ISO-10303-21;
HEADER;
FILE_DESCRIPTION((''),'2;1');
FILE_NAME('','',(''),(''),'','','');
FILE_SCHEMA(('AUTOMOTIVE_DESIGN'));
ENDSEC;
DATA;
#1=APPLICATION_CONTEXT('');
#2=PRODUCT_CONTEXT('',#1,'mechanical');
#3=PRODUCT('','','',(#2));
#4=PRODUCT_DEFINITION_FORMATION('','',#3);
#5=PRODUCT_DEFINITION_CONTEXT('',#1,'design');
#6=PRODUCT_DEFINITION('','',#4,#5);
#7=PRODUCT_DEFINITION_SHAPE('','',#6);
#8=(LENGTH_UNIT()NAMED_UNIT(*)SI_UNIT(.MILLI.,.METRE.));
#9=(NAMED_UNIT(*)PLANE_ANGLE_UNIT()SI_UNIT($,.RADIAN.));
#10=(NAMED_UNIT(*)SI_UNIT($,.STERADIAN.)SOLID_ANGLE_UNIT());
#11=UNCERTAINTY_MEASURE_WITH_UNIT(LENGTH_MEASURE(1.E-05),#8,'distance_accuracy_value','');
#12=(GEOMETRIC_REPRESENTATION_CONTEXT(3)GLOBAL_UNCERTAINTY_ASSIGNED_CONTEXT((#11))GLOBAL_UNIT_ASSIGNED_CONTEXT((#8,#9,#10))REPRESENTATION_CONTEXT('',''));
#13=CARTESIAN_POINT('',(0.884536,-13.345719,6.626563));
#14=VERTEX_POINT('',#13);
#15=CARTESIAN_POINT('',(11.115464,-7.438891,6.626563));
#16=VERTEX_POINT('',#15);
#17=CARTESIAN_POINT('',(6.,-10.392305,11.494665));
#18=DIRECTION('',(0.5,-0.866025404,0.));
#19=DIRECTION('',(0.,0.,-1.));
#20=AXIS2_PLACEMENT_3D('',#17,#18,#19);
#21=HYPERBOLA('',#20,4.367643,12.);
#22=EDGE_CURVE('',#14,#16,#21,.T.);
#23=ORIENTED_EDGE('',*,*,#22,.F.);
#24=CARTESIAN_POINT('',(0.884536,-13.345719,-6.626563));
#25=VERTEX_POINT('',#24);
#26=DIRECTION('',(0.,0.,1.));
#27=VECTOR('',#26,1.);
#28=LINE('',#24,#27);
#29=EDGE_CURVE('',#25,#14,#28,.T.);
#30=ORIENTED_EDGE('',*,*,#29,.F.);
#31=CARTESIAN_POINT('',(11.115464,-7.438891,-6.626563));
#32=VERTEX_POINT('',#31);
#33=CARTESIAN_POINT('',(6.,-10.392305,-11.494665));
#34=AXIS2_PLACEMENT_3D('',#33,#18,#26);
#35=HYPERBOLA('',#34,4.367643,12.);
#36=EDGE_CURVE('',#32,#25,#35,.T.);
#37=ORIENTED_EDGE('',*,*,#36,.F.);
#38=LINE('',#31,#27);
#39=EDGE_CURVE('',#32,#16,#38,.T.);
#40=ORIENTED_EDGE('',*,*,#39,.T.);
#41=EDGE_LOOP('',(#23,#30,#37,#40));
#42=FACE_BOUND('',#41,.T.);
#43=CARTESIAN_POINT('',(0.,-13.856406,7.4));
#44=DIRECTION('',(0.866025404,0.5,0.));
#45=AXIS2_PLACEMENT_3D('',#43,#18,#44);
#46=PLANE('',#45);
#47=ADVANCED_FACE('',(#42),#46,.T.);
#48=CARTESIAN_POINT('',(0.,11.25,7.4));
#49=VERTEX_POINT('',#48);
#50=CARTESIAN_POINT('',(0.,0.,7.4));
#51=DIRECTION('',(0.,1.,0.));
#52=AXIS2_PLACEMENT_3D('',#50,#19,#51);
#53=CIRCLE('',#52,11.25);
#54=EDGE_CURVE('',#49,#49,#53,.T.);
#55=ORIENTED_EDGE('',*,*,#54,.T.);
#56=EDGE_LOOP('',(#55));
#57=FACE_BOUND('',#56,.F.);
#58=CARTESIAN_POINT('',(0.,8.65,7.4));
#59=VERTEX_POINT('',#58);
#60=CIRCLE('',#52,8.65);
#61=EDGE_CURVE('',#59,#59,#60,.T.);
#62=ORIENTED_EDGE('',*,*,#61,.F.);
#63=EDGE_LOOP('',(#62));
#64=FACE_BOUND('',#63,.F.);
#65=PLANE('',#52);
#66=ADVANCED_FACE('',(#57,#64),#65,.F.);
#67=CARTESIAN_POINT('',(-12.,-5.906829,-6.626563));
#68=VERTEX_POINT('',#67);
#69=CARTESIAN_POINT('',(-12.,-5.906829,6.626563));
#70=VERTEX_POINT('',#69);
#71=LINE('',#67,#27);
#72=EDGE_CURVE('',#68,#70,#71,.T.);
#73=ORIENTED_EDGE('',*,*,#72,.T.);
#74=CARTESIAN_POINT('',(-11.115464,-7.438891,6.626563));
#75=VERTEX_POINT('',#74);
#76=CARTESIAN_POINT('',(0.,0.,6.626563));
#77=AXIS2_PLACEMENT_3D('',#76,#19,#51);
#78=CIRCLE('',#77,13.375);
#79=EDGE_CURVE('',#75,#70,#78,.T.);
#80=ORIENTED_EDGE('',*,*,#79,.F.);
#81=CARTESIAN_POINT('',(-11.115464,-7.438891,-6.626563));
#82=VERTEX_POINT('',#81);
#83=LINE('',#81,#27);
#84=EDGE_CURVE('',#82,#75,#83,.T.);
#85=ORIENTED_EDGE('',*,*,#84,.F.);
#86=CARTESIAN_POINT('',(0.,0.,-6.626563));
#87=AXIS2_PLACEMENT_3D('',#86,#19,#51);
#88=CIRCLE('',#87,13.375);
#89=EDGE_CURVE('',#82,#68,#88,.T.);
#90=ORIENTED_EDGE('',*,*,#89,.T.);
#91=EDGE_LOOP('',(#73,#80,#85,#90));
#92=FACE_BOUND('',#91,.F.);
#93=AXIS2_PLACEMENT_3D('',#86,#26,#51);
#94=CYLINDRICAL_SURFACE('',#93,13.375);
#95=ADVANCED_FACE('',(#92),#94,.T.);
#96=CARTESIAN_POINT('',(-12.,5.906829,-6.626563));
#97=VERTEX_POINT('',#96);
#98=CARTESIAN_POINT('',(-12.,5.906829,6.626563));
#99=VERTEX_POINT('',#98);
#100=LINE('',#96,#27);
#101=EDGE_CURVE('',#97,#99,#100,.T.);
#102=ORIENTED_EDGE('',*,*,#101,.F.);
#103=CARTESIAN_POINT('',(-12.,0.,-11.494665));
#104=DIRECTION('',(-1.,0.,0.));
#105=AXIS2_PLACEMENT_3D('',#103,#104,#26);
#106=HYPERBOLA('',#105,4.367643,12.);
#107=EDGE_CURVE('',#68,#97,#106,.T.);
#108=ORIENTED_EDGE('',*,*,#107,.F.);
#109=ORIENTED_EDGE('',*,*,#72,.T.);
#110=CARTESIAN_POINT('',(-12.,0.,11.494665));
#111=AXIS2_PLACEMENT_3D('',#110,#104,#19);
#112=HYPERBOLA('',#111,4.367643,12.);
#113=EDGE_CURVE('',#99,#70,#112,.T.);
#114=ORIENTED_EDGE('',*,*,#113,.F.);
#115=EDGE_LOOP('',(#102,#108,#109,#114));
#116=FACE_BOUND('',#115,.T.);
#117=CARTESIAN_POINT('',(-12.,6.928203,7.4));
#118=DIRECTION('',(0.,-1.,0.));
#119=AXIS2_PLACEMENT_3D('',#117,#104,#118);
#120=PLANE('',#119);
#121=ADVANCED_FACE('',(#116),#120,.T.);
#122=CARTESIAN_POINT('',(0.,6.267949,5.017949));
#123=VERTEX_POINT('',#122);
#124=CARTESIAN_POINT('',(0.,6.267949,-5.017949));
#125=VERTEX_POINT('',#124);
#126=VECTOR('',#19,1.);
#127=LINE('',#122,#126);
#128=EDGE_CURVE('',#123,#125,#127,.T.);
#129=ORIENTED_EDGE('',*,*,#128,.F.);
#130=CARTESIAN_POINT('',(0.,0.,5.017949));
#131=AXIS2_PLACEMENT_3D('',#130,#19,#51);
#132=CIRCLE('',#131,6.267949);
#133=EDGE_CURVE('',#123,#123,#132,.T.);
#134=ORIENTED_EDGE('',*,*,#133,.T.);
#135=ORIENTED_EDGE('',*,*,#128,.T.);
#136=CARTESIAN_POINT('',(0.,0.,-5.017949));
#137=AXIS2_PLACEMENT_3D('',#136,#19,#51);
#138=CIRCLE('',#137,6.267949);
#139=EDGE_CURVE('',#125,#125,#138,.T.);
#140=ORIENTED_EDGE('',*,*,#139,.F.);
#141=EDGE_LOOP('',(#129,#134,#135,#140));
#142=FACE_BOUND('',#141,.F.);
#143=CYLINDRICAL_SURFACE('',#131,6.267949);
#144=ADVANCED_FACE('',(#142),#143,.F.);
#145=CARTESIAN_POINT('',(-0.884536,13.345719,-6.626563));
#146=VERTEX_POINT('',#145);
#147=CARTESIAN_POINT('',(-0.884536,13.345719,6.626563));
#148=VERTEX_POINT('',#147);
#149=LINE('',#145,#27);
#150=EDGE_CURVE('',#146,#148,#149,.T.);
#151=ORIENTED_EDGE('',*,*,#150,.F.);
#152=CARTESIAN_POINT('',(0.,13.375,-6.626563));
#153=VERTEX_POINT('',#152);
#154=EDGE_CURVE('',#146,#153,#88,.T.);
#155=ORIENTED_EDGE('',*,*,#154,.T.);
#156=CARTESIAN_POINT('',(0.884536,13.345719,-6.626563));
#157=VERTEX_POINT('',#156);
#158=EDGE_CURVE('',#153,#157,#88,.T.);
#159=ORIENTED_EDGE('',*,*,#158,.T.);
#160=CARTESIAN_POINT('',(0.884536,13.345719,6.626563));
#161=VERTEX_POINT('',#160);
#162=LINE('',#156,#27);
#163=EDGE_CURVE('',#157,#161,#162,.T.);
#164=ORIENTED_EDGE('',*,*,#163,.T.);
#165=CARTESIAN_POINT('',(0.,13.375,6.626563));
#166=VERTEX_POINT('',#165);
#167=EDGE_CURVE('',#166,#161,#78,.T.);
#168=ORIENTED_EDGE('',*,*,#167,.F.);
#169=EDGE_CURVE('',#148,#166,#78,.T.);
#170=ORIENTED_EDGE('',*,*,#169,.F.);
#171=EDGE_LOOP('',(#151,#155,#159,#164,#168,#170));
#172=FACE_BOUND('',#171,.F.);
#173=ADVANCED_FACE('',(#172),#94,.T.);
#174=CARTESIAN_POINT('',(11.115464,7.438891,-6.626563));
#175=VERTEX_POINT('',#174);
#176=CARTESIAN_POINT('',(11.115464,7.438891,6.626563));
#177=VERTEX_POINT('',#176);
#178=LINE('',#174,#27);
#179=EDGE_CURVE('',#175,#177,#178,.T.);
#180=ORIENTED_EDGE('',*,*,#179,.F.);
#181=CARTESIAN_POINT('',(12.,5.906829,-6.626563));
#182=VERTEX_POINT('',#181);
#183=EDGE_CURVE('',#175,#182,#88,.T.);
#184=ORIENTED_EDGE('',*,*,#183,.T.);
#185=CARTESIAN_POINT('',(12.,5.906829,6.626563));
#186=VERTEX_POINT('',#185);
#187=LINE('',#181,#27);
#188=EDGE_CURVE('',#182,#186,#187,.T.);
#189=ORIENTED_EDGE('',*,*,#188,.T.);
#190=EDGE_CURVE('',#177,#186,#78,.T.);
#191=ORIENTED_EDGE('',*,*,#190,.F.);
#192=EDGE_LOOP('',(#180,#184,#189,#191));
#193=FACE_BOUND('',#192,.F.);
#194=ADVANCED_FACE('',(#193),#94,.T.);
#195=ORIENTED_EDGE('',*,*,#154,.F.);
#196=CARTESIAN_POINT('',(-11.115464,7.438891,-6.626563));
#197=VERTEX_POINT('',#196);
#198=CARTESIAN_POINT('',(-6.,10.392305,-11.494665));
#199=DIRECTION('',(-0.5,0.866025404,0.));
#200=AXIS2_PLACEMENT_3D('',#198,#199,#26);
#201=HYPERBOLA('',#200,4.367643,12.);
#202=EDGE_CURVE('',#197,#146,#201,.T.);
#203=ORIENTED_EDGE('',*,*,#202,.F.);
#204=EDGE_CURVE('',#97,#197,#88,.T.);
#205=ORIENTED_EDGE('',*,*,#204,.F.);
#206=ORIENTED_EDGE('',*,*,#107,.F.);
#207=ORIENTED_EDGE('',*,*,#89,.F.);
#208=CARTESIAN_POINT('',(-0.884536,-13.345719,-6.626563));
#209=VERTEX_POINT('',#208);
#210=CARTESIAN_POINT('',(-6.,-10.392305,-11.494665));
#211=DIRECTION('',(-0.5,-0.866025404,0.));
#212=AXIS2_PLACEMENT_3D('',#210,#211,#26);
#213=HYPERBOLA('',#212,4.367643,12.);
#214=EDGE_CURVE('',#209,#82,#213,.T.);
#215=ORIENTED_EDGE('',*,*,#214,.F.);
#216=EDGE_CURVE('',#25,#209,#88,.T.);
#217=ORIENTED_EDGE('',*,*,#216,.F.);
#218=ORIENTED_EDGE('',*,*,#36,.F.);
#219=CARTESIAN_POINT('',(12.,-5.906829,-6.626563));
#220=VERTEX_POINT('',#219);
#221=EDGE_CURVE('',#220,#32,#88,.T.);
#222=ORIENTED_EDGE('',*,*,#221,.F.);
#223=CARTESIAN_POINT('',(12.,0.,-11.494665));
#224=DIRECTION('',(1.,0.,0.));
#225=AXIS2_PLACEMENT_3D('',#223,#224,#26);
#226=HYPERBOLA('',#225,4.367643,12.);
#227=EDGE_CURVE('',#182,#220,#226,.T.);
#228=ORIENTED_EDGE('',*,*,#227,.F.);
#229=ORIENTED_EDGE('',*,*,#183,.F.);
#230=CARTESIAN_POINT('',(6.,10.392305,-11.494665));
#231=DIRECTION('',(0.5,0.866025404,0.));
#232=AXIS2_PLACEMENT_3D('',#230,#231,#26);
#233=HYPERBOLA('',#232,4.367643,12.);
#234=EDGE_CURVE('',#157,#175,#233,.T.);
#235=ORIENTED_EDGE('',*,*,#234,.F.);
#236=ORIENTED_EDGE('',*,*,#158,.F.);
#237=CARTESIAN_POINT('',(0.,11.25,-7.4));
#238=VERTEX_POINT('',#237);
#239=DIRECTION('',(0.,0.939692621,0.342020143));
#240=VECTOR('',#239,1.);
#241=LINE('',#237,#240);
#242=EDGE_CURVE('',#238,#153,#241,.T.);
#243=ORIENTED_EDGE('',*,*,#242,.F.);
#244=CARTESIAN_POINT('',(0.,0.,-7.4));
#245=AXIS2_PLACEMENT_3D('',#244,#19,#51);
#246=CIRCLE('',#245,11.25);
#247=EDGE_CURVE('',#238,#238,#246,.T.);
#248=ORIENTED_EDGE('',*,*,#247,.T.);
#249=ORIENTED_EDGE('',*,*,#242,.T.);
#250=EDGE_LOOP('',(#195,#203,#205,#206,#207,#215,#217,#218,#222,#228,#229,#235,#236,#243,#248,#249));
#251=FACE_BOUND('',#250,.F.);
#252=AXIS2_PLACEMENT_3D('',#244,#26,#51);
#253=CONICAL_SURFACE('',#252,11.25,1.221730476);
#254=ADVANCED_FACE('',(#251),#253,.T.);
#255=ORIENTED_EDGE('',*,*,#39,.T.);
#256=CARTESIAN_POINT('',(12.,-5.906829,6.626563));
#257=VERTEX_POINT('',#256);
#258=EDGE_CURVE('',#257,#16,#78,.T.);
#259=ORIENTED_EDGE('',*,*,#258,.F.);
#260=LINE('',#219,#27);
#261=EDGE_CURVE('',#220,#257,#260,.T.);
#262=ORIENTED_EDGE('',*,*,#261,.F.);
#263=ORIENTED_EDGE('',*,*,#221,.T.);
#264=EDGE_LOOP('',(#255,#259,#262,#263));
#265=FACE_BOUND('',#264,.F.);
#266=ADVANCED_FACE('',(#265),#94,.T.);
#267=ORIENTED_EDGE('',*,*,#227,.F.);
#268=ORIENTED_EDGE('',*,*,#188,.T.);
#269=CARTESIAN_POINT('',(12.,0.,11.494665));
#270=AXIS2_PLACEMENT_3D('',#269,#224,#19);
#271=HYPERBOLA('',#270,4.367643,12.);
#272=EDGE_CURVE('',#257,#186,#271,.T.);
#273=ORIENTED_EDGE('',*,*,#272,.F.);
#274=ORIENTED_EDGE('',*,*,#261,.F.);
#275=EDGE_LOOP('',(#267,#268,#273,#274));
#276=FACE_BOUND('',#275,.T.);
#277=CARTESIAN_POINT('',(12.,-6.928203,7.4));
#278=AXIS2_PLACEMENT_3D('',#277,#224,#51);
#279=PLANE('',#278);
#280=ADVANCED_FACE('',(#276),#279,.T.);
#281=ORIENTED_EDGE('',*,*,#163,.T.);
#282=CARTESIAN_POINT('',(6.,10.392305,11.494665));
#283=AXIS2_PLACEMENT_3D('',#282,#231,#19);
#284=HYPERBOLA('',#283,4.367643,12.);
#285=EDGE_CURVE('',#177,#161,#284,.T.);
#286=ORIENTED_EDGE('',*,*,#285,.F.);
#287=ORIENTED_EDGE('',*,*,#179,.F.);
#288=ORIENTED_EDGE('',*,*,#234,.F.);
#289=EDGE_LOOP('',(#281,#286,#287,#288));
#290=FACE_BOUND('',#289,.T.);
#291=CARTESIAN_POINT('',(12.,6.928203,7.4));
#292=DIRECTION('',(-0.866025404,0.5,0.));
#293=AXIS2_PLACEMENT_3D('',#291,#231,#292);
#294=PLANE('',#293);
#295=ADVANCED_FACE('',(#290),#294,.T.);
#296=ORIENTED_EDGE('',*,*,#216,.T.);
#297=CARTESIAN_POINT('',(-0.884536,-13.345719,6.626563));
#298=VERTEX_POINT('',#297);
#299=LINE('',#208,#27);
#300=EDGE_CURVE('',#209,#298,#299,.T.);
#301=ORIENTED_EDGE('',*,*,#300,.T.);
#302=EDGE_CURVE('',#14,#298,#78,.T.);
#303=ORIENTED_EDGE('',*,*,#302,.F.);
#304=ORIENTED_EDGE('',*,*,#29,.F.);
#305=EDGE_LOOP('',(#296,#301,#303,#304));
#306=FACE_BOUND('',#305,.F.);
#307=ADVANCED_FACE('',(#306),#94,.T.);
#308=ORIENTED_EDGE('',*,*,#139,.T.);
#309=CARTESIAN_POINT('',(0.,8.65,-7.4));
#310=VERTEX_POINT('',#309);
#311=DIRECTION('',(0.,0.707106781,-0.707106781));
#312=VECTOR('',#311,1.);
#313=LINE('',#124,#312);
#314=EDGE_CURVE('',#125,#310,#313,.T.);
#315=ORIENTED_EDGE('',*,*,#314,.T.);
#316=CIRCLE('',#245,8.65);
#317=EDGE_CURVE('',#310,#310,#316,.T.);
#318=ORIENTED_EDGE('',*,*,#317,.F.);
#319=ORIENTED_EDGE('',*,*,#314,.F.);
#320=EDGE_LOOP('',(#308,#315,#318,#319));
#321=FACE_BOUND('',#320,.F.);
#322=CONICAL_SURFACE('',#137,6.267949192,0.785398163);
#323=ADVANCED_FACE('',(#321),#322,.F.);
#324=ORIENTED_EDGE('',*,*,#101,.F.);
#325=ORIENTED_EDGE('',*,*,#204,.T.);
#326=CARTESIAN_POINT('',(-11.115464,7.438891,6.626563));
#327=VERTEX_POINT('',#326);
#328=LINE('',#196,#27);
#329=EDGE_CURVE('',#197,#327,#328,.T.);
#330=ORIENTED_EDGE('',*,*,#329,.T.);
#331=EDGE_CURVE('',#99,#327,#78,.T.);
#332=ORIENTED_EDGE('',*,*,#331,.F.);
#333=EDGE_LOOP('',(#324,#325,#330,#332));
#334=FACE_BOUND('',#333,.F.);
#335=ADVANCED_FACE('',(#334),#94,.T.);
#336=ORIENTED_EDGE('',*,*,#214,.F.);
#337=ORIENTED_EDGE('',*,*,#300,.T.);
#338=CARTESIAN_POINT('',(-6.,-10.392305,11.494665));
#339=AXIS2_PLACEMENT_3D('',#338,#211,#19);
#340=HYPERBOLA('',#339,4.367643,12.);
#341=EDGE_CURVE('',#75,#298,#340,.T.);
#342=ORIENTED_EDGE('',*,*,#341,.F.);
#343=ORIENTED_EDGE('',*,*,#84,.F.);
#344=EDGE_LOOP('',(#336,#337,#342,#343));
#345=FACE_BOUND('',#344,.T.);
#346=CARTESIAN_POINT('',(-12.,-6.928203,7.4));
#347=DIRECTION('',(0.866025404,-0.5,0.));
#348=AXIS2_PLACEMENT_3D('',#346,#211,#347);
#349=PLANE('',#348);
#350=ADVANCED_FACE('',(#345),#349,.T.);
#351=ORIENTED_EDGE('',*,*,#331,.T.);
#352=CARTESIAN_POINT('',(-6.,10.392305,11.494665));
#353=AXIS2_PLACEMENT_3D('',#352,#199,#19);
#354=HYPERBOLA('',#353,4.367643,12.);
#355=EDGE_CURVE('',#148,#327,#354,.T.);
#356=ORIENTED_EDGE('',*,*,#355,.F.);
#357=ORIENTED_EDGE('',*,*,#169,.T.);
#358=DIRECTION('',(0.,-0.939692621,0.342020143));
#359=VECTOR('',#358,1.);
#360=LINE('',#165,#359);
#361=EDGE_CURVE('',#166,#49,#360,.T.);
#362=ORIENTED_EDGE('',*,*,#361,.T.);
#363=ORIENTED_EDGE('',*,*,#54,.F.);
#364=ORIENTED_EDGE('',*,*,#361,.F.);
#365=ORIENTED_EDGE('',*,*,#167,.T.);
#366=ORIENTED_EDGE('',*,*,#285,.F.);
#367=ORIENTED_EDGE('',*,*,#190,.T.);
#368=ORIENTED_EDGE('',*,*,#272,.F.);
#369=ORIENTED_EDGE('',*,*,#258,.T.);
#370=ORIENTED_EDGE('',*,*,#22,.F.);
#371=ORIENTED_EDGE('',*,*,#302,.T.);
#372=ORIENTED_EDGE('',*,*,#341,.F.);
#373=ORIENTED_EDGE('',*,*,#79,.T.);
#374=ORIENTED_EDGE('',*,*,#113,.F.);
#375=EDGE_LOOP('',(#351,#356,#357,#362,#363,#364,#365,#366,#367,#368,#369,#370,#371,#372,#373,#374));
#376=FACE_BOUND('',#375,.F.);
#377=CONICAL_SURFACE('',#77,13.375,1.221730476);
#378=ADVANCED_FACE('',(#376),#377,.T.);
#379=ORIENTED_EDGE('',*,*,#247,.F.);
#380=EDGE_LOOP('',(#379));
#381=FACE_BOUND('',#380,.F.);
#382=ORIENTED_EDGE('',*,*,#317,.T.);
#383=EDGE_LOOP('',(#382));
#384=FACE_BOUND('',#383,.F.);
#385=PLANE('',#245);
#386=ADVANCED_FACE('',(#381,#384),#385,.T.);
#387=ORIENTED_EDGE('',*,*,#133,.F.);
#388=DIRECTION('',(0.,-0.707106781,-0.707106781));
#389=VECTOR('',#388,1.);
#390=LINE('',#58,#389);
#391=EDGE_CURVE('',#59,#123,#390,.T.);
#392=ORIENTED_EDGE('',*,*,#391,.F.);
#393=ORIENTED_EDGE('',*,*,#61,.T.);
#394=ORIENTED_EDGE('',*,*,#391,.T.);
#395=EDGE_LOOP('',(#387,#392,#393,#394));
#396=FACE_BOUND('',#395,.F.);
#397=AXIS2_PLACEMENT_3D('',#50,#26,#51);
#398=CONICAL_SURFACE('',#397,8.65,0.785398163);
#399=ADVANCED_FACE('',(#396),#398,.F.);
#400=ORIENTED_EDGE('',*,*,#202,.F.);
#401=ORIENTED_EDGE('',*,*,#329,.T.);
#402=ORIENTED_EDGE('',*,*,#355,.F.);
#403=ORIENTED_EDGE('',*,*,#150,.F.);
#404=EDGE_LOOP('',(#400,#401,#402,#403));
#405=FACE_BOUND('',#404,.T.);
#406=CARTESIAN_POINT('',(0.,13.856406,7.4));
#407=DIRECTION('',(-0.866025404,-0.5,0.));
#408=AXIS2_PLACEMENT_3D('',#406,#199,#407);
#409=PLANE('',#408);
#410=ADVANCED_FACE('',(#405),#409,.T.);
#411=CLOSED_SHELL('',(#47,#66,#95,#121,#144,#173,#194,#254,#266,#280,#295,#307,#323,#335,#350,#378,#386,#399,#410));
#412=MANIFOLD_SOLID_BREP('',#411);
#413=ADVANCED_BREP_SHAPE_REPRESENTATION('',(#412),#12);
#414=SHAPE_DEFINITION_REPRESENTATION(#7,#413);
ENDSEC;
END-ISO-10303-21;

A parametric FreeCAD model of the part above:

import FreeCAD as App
import Part
import Sketcher

V = App.Vector
Q = App.Units.Quantity


def add_polygon(sketch, points):
    """Adds a closed chain of lines whose ends are joined by coincident constraints."""
    first, n = sketch.GeometryCount, len(points)
    for a, b in zip(points, points[1:] + points[:1]):
        sketch.addGeometry(Part.LineSegment(App.Vector(*a, 0), App.Vector(*b, 0)), False)
    for i in range(n):
        sketch.addConstraint(Sketcher.Constraint("Coincident", first + i, 2, first + (i + 1) % n, 1))

doc = App.newDocument("Part")
body = doc.addObject("PartDesign::Body", "Body")

# Sketch on YZ plane
sketch1 = body.newObject("Sketcher::SketchObject", "Sketch")
sketch1.AttachmentSupport = (doc.getObject("YZ_Plane"), [""])
sketch1.MapMode = "FlatFace"
add_polygon(sketch1, [(6.3, 5), (6.3, -5), (8.7, -7.4), (11.2, -7.4), (13.4, -6.6), (13.4, 6.6), (11.2, 7.4), (8.7, 7.4)])  # lines 0-7
sketch1.addConstraint(Sketcher.Constraint("Vertical", 0))
sketch1.addConstraint(Sketcher.Constraint("Horizontal", 2))
sketch1.addConstraint(Sketcher.Constraint("Vertical", 4))
sketch1.addConstraint(Sketcher.Constraint("Horizontal", 6))
sketch1.addConstraint(Sketcher.Constraint("Symmetric", 2, 2, 5, 2, -1))
sketch1.addConstraint(Sketcher.Constraint("Perpendicular", 1, 7))
sketch1.addConstraint(Sketcher.Constraint("Vertical", 1, 2, 6, 2))
sketch1.addConstraint(Sketcher.Constraint("Equal", 3, 5))
sketch1.addConstraint(Sketcher.Constraint("Equal", 1, 7))
sketch1.addConstraint(Sketcher.Constraint("Angle", 3, Q("20 deg")))
sketch1.addConstraint(Sketcher.Constraint("DistanceX", 2, 1, 2, 2, 2.6))
sketch1.addConstraint(Sketcher.Constraint("DistanceY", 1, 2, -1, 1, 7.4))
sketch1.addConstraint(Sketcher.Constraint("DistanceX", -1, 1, 1, 2, 8.65))
sketch1.addConstraint(Sketcher.Constraint("DistanceY", 0, 2, 0, 1, 10.035898))
sketch1.addConstraint(Sketcher.Constraint("DistanceX", -1, 1, 3, 2, 13.375))
revolution = body.newObject("PartDesign::Revolution", "Revolution")
revolution.Profile = sketch1
revolution.ReferenceAxis = (sketch1, ["V_Axis"])
revolution.Angle = 360

# Sketch on XY plane
sketch2 = body.newObject("Sketcher::SketchObject", "Sketch001")
sketch2.AttachmentSupport = (doc.getObject("XY_Plane"), [""])
sketch2.MapMode = "FlatFace"
sketch2.AttachmentOffset = App.Placement(V(0, 0, 7.4), App.Rotation())
add_polygon(sketch2, [(-18, 18), (-18, -18), (18, -18), (18, 18)])  # lines 0-3
add_polygon(sketch2, [(12, -7), (0, -14), (-12, -7), (-12, 7), (0, 14), (12, 7)])  # lines 4-9
sketch2.addConstraint(Sketcher.Constraint("Vertical", 0))
sketch2.addConstraint(Sketcher.Constraint("Horizontal", 1))
sketch2.addConstraint(Sketcher.Constraint("Vertical", 2))
sketch2.addConstraint(Sketcher.Constraint("Horizontal", 3))
sketch2.addConstraint(Sketcher.Constraint("Vertical", 6))
sketch2.addConstraint(Sketcher.Constraint("Vertical", 9))
sketch2.addConstraint(Sketcher.Constraint("Symmetric", 0, 2, 2, 2, -1, 1))
sketch2.addConstraint(Sketcher.Constraint("Symmetric", 4, 2, 7, 2, -1, 1))
sketch2.addConstraint(Sketcher.Constraint("Symmetric", 5, 2, 8, 2, -1, 1))
sketch2.addConstraint(Sketcher.Constraint("PointOnObject", 4, 2, -2))
sketch2.addConstraint(Sketcher.Constraint("Parallel", 4, 7))
sketch2.addConstraint(Sketcher.Constraint("Horizontal", 6, 2, 8, 2))
sketch2.addConstraint(Sketcher.Constraint("Equal", 3, 0))
sketch2.addConstraint(Sketcher.Constraint("Angle", 4, Q("-150 deg")))
sketch2.addConstraint(Sketcher.Constraint("DistanceX", 5, 2, -1, 1, 12.0))
sketch2.addConstraint(Sketcher.Constraint("DistanceX", 1, 1, 1, 2, 36.874))
sketch2.addConstraint(Sketcher.Constraint("DistanceY", 6, 1, 6, 2, 13.856406))
pocket1 = body.newObject("PartDesign::Pocket", "Pocket")
pocket1.Profile = sketch2
pocket1.Type = "ThroughAll"

doc.recompute()
